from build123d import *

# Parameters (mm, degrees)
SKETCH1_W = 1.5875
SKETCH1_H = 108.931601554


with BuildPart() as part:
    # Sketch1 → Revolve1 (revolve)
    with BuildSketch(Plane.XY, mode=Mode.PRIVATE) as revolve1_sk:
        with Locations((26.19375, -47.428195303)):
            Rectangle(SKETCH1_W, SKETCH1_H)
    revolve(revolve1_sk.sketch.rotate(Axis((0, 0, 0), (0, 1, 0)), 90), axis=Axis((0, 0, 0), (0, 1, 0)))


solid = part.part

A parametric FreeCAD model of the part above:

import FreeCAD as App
import Part
import Sketcher
Q = App.Units.Quantity

doc = App.newDocument("Part")
body = doc.addObject("PartDesign::Body", "Body")

sketch1 = body.newObject("Sketcher::SketchObject", "Sketch")
sketch1.AttachmentSupport = (doc.getObject("XY_Plane"), [""])
sketch1.MapMode = "FlatFace"
sketch1.addGeometry([
    Part.LineSegment(App.Vector(25.4, 7.037605, 0), App.Vector(25.4, -101.893996, 0)),
    Part.LineSegment(App.Vector(25.4, -101.893996, 0), App.Vector(26.9875, -101.893996, 0)),
    Part.LineSegment(App.Vector(26.9875, -101.893996, 0), App.Vector(26.9875, 7.037605, 0)),
    Part.LineSegment(App.Vector(26.9875, 7.037605, 0), App.Vector(25.4, 7.037605, 0)),
], False)
sketch1.addConstraint([
    Sketcher.Constraint("Coincident", 0, 2, 1, 1),
    Sketcher.Constraint("Coincident", 1, 2, 2, 1),
    Sketcher.Constraint("Coincident", 2, 2, 3, 1),
    Sketcher.Constraint("Coincident", 3, 2, 0, 1),
    Sketcher.Constraint("Vertical", 0),
    Sketcher.Constraint("Horizontal", 1),
    Sketcher.Constraint("Vertical", 2),
    Sketcher.Constraint("Horizontal", 3),
    Sketcher.Constraint("DistanceX", -1, 1, 0, 2, Q("1 in")),
    Sketcher.Constraint("DistanceX", 1, 1, 1, 2, Q("0.0625 in")),
    Sketcher.Constraint("DistanceY", 0, 2, 0, 1, 108.931602),
    Sketcher.Constraint("DistanceY", 0, 2, -1, 1, 101.893996),
])
revolution = body.newObject("PartDesign::Revolution", "Revolution")
revolution.Profile = sketch1
revolution.ReferenceAxis = (sketch1, ["V_Axis"])
revolution.Angle = 360

doc.recompute()
